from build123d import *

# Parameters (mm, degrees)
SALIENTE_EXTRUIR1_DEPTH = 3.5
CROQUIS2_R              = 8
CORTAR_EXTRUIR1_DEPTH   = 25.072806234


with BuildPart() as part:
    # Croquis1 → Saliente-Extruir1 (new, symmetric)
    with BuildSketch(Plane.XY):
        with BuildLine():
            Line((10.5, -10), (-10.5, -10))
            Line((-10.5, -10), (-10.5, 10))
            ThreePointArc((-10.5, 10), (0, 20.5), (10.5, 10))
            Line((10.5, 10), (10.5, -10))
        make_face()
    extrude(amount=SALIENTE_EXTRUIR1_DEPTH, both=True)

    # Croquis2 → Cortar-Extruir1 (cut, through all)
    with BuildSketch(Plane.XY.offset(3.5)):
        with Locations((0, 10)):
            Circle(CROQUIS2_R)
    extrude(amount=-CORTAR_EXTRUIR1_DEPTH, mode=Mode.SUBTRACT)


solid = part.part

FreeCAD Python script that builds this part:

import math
import FreeCAD as App
import Part
import Sketcher
from FreeCAD import Vector

doc = App.newDocument("Part")
body = doc.addObject("PartDesign::Body", "Body")

sketch1 = body.newObject("Sketcher::SketchObject", "Sketch")
sketch1.AttachmentSupport = (doc.getObject("XY_Plane"), [""])
sketch1.MapMode = "FlatFace"
sketch1.addGeometry(Part.LineSegment(Vector(-10, -10, 0), Vector(10, -10, 0)), False)
sketch1.addGeometry(Part.LineSegment(Vector(10, -10, 0), Vector(10, 10, 0)), False)
sketch1.addGeometry(Part.ArcOfCircle(Part.Circle(Vector(0, 10, 0), Vector(0, 0, 1), 10), math.radians(0), math.radians(180)), False)
sketch1.addGeometry(Part.LineSegment(Vector(-10, 10, 0), Vector(-10, -10, 0)), False)
sketch1.addConstraint(Sketcher.Constraint("Coincident", 0, 2, 1, 1))
sketch1.addConstraint(Sketcher.Constraint("Tangent", 1, 2, 2, 1))
sketch1.addConstraint(Sketcher.Constraint("Tangent", 2, 2, 3, 1))
sketch1.addConstraint(Sketcher.Constraint("Coincident", 3, 2, 0, 1))
sketch1.addConstraint(Sketcher.Constraint("Horizontal", 0))
sketch1.addConstraint(Sketcher.Constraint("Vertical", 1))
sketch1.addConstraint(Sketcher.Constraint("Vertical", 3))
sketch1.addConstraint(Sketcher.Constraint("Symmetric", 0, 2, 2, 2, -1, 1))
sketch1.addConstraint(Sketcher.Constraint("Radius", 2, 10.5))
sketch1.addConstraint(Sketcher.Constraint("DistanceY", 1, 1, 1, 2, 20.0))
pad1 = body.newObject("PartDesign::Pad", "Pad")
pad1.Profile = sketch1
pad1.Length = 7
pad1.Midplane = True

sketch2 = body.newObject("Sketcher::SketchObject", "Sketch001")
sketch2.AttachmentSupport = (doc.getObject("XY_Plane"), [""])
sketch2.MapMode = "FlatFace"
sketch2.AttachmentOffset = App.Placement(Vector(0, 0, 3.5), App.Rotation())
sketch2.addGeometry(Part.Circle(Vector(0, 10, 0), Vector(0, 0, 1), 8), False)
sketch2.addConstraint(Sketcher.Constraint("PointOnObject", 0, 3, -2))
sketch2.addConstraint(Sketcher.Constraint("Diameter", 0, 16.0))
sketch2.addConstraint(Sketcher.Constraint("DistanceY", -1, 1, 0, 3, 10.0))
pocket1 = body.newObject("PartDesign::Pocket", "Pocket")
pocket1.Profile = sketch2
pocket1.Type = "ThroughAll"

doc.recompute()
